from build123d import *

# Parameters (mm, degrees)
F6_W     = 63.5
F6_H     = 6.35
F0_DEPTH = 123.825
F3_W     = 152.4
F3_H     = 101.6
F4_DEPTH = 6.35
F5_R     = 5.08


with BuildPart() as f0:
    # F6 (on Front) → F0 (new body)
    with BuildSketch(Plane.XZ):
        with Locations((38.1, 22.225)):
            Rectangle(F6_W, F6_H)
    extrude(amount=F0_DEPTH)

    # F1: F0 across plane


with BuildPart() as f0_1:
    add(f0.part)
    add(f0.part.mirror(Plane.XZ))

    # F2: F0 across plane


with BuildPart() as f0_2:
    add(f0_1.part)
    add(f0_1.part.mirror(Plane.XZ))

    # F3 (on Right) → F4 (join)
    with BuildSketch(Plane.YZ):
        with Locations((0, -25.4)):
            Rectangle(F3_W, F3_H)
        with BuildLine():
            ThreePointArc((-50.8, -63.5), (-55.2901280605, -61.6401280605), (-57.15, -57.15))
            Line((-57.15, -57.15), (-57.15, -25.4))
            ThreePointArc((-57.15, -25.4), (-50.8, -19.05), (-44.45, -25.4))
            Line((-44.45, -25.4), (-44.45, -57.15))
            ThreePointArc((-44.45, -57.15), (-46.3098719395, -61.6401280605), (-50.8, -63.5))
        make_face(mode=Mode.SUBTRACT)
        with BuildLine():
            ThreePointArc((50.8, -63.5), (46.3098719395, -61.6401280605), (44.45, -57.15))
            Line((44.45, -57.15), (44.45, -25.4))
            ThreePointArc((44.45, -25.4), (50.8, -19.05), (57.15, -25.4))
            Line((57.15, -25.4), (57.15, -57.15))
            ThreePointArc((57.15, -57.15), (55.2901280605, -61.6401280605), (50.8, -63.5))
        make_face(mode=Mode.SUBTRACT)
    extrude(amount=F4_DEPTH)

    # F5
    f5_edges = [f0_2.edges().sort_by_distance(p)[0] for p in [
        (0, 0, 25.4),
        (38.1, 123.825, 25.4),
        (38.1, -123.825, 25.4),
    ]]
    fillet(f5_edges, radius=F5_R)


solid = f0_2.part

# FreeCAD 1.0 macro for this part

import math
import FreeCAD as App
import Part
import Sketcher
Q = App.Units.Quantity


def edges_at(feature, points):
    """Names of the edges that pass closest to the given points."""
    edges = feature.Shape.Edges
    near = lambda p: min(range(len(edges)), key=lambda i: edges[i].distToShape(Part.Vertex(*p))[0])
    return sorted({f"Edge{near(p) + 1}" for p in points})


def add_polygon(sketch, points):
    """Adds a closed chain of lines whose ends are joined by coincident constraints."""
    first, n = sketch.GeometryCount, len(points)
    for a, b in zip(points, points[1:] + points[:1]):
        sketch.addGeometry(Part.LineSegment(App.Vector(*a, 0), App.Vector(*b, 0)), False)
    for i in range(n):
        sketch.addConstraint(Sketcher.Constraint("Coincident", first + i, 2, first + (i + 1) % n, 1))

doc = App.newDocument("Part")
params = doc.addObject("Spreadsheet::Sheet", "Params")
for row, (alias, value) in enumerate([
    ("sketch1_width", "2.5 in"),
    ("sketch1_height", "0.25 in"),
    ("pad1_length", "4.875 in"),
    ("sketch2_width", "6 in"),
    ("sketch2_height", "4 in"),
    ("sketch2_radius", "0.25 in"),
    ("sketch2_height2", "1.25 in"),
    ("pad2_length", "0.25 in"),
    ("fillet_radius", "0.2 in"),
], start=1):
    params.set(f"A{row}", alias)
    params.set(f"B{row}", "=" + value)
    params.setAlias(f"B{row}", alias)

body = doc.addObject("PartDesign::Body", "Body")

sketch1 = doc.addObject("Sketcher::SketchObject", "Sketch")
body.addObject(sketch1)
sketch1.AttachmentSupport = (doc.XZ_Plane, [""])
sketch1.MapMode = "FlatFace"
add_polygon(sketch1, [(6, 25), (6, 19), (70, 19), (70, 25)])
sketch1.addConstraint([
    Sketcher.Constraint("Vertical", 0),
    Sketcher.Constraint("Horizontal", 1),
    Sketcher.Constraint("Vertical", 2),
    Sketcher.Constraint("Horizontal", 3),
    Sketcher.Constraint("DistanceX", 1, 1, 1, 2, Q("2.5 in")),
    Sketcher.Constraint("DistanceY", -1, 1, 2, 2, Q("1 in")),
    Sketcher.Constraint("DistanceY", 0, 2, 0, 1, Q("0.25 in")),
    Sketcher.Constraint("DistanceX", -1, 1, 0, 2, Q("0.25 in")),
])
sketch1.setExpression("Constraints[8]", "Params.sketch1_width")
sketch1.setExpression("Constraints[10]", "Params.sketch1_height")
pad1 = doc.addObject("PartDesign::Pad", "Pad")
body.addObject(pad1)
pad1.Profile = sketch1
pad1.setExpression("Length", "Params.pad1_length")
body2 = doc.addObject("PartDesign::Body", "Body001")
doc.recompute()

body2.BaseFeature = body
doc.recompute()

mirroring = doc.addObject("Part::Mirroring", "Mirroring")
mirroring.Source = body
mirroring.Base = App.Vector(0, 0, 0)
mirroring.Normal = App.Vector(0, -1, 0)
body3 = doc.addObject("PartDesign::Body", "Body002")
body3.BaseFeature = mirroring
boolean = doc.addObject("PartDesign::Boolean", "Boolean")
body2.addObject(boolean)
boolean.Type = "Fuse"
boolean.addObjects([body3])
doc.recompute()
body4 = doc.addObject("PartDesign::Body", "Body003")
doc.recompute()

body4.BaseFeature = body2
doc.recompute()

mirroring2 = doc.addObject("Part::Mirroring", "Mirroring001")
mirroring2.Source = body2
mirroring2.Base = App.Vector(0, 0, 0)
mirroring2.Normal = App.Vector(0, -1, 0)
body5 = doc.addObject("PartDesign::Body", "Body004")
body5.BaseFeature = mirroring2
boolean2 = doc.addObject("PartDesign::Boolean", "Boolean001")
body4.addObject(boolean2)
boolean2.Type = "Fuse"
boolean2.addObjects([body5])
doc.recompute()

sketch2 = doc.addObject("Sketcher::SketchObject", "Sketch001")
body4.addObject(sketch2)
sketch2.AttachmentSupport = (doc.getObject("YZ_Plane003"), [""])
sketch2.MapMode = "FlatFace"
add_polygon(sketch2, [(-76, 25), (-76, -76), (76, -76), (76, 25)])
sketch2.addGeometry(Part.ArcOfCircle(Part.Circle(App.Vector(-51, -57, 0), App.Vector(0, 0, 1), 6), math.radians(-90), math.radians(0)), False)
sketch2.addGeometry(Part.ArcOfCircle(Part.Circle(App.Vector(-51, -57, 0), App.Vector(0, 0, 1), 6), math.radians(180), math.radians(270)), False)
sketch2.addGeometry(Part.LineSegment(App.Vector(-57, -57, 0), App.Vector(-57, -25, 0)), False)
sketch2.addGeometry(Part.ArcOfCircle(Part.Circle(App.Vector(-51, -25, 0), App.Vector(0, 0, 1), 6), math.radians(0), math.radians(180)), False)
sketch2.addGeometry(Part.LineSegment(App.Vector(-44, -25, 0), App.Vector(-44, -57, 0)), False)
sketch2.addGeometry(Part.ArcOfCircle(Part.Circle(App.Vector(51, -57, 0), App.Vector(0, 0, 1), 6), math.radians(-90), math.radians(0)), False)
sketch2.addGeometry(Part.ArcOfCircle(Part.Circle(App.Vector(51, -57, 0), App.Vector(0, 0, 1), 6), math.radians(180), math.radians(270)), False)
sketch2.addGeometry(Part.LineSegment(App.Vector(44, -57, 0), App.Vector(44, -25, 0)), False)
sketch2.addGeometry(Part.ArcOfCircle(Part.Circle(App.Vector(51, -25, 0), App.Vector(0, 0, 1), 6), math.radians(0), math.radians(180)), False)
sketch2.addGeometry(Part.LineSegment(App.Vector(57, -25, 0), App.Vector(57, -57, 0)), False)
sketch2.addConstraint([
    Sketcher.Constraint("Tangent", 4, 1, 5, 2),
    Sketcher.Constraint("Tangent", 5, 1, 6, 1),
    Sketcher.Constraint("Tangent", 6, 2, 7, 2),
    Sketcher.Constraint("Tangent", 7, 1, 8, 1),
    Sketcher.Constraint("Tangent", 8, 2, 4, 2),
    Sketcher.Constraint("Tangent", 9, 1, 10, 2),
    Sketcher.Constraint("Tangent", 10, 1, 11, 1),
    Sketcher.Constraint("Tangent", 11, 2, 12, 2),
    Sketcher.Constraint("Tangent", 12, 1, 13, 1),
    Sketcher.Constraint("Tangent", 13, 2, 9, 2),
    Sketcher.Constraint("Vertical", 0),
    Sketcher.Constraint("Horizontal", 1),
    Sketcher.Constraint("Vertical", 2),
    Sketcher.Constraint("Horizontal", 3),
    Sketcher.Constraint("Vertical", 6),
    Sketcher.Constraint("Vertical", 8),
    Sketcher.Constraint("Vertical", 11),
    Sketcher.Constraint("Vertical", 13),
    Sketcher.Constraint("Equal", 4, 5),
    Sketcher.Constraint("Equal", 7, 9),
    Sketcher.Constraint("Equal", 9, 10),
    Sketcher.Constraint("Symmetric", 4, 3, 9, 3, -2),
    Sketcher.Constraint("Horizontal", 7, 3, 12, 3),
    Sketcher.Constraint("Vertical", 7, 3, 4, 1),
    Sketcher.Constraint("Vertical", 12, 3, 9, 1),
    Sketcher.Constraint("DistanceX", 1, 1, 1, 2, Q("6 in")),
    Sketcher.Constraint("DistanceY", 0, 2, 0, 1, Q("4 in")),
    Sketcher.Constraint("Radius", 4, Q("0.25 in")),
    Sketcher.Constraint("DistanceX", 4, 3, -1, 1, Q("2 in")),
    Sketcher.Constraint("DistanceY", 7, 3, -1, 1, Q("1 in")),
    Sketcher.Constraint("DistanceX", 0, 2, -1, 1, Q("3 in")),
    Sketcher.Constraint("DistanceY", 0, 2, -1, 1, Q("3 in")),
    Sketcher.Constraint("DistanceY", 6, 1, 6, 2, Q("1.25 in")),
])
sketch2.setExpression("Constraints[29]", "Params.sketch2_width")
sketch2.setExpression("Constraints[30]", "Params.sketch2_height")
sketch2.setExpression("Constraints[31]", "Params.sketch2_radius")
sketch2.setExpression("Constraints[36]", "Params.sketch2_height2")
pad2 = doc.addObject("PartDesign::Pad", "Pad001")
body4.addObject(pad2)
pad2.Profile = sketch2
pad2.setExpression("Length", "Params.pad2_length")
doc.recompute()

fillet = doc.addObject("PartDesign::Fillet", "Fillet")
body4.addObject(fillet)
fillet.Base = (pad2, edges_at(pad2, [(0, 0, 25.4), (38.1, 123.825, 25.4), (38.1, -123.825, 25.4)]))
fillet.setExpression("Radius", "Params.fillet_radius")
mirroring.Visibility = False
mirroring2.Visibility = False

doc.recompute()
